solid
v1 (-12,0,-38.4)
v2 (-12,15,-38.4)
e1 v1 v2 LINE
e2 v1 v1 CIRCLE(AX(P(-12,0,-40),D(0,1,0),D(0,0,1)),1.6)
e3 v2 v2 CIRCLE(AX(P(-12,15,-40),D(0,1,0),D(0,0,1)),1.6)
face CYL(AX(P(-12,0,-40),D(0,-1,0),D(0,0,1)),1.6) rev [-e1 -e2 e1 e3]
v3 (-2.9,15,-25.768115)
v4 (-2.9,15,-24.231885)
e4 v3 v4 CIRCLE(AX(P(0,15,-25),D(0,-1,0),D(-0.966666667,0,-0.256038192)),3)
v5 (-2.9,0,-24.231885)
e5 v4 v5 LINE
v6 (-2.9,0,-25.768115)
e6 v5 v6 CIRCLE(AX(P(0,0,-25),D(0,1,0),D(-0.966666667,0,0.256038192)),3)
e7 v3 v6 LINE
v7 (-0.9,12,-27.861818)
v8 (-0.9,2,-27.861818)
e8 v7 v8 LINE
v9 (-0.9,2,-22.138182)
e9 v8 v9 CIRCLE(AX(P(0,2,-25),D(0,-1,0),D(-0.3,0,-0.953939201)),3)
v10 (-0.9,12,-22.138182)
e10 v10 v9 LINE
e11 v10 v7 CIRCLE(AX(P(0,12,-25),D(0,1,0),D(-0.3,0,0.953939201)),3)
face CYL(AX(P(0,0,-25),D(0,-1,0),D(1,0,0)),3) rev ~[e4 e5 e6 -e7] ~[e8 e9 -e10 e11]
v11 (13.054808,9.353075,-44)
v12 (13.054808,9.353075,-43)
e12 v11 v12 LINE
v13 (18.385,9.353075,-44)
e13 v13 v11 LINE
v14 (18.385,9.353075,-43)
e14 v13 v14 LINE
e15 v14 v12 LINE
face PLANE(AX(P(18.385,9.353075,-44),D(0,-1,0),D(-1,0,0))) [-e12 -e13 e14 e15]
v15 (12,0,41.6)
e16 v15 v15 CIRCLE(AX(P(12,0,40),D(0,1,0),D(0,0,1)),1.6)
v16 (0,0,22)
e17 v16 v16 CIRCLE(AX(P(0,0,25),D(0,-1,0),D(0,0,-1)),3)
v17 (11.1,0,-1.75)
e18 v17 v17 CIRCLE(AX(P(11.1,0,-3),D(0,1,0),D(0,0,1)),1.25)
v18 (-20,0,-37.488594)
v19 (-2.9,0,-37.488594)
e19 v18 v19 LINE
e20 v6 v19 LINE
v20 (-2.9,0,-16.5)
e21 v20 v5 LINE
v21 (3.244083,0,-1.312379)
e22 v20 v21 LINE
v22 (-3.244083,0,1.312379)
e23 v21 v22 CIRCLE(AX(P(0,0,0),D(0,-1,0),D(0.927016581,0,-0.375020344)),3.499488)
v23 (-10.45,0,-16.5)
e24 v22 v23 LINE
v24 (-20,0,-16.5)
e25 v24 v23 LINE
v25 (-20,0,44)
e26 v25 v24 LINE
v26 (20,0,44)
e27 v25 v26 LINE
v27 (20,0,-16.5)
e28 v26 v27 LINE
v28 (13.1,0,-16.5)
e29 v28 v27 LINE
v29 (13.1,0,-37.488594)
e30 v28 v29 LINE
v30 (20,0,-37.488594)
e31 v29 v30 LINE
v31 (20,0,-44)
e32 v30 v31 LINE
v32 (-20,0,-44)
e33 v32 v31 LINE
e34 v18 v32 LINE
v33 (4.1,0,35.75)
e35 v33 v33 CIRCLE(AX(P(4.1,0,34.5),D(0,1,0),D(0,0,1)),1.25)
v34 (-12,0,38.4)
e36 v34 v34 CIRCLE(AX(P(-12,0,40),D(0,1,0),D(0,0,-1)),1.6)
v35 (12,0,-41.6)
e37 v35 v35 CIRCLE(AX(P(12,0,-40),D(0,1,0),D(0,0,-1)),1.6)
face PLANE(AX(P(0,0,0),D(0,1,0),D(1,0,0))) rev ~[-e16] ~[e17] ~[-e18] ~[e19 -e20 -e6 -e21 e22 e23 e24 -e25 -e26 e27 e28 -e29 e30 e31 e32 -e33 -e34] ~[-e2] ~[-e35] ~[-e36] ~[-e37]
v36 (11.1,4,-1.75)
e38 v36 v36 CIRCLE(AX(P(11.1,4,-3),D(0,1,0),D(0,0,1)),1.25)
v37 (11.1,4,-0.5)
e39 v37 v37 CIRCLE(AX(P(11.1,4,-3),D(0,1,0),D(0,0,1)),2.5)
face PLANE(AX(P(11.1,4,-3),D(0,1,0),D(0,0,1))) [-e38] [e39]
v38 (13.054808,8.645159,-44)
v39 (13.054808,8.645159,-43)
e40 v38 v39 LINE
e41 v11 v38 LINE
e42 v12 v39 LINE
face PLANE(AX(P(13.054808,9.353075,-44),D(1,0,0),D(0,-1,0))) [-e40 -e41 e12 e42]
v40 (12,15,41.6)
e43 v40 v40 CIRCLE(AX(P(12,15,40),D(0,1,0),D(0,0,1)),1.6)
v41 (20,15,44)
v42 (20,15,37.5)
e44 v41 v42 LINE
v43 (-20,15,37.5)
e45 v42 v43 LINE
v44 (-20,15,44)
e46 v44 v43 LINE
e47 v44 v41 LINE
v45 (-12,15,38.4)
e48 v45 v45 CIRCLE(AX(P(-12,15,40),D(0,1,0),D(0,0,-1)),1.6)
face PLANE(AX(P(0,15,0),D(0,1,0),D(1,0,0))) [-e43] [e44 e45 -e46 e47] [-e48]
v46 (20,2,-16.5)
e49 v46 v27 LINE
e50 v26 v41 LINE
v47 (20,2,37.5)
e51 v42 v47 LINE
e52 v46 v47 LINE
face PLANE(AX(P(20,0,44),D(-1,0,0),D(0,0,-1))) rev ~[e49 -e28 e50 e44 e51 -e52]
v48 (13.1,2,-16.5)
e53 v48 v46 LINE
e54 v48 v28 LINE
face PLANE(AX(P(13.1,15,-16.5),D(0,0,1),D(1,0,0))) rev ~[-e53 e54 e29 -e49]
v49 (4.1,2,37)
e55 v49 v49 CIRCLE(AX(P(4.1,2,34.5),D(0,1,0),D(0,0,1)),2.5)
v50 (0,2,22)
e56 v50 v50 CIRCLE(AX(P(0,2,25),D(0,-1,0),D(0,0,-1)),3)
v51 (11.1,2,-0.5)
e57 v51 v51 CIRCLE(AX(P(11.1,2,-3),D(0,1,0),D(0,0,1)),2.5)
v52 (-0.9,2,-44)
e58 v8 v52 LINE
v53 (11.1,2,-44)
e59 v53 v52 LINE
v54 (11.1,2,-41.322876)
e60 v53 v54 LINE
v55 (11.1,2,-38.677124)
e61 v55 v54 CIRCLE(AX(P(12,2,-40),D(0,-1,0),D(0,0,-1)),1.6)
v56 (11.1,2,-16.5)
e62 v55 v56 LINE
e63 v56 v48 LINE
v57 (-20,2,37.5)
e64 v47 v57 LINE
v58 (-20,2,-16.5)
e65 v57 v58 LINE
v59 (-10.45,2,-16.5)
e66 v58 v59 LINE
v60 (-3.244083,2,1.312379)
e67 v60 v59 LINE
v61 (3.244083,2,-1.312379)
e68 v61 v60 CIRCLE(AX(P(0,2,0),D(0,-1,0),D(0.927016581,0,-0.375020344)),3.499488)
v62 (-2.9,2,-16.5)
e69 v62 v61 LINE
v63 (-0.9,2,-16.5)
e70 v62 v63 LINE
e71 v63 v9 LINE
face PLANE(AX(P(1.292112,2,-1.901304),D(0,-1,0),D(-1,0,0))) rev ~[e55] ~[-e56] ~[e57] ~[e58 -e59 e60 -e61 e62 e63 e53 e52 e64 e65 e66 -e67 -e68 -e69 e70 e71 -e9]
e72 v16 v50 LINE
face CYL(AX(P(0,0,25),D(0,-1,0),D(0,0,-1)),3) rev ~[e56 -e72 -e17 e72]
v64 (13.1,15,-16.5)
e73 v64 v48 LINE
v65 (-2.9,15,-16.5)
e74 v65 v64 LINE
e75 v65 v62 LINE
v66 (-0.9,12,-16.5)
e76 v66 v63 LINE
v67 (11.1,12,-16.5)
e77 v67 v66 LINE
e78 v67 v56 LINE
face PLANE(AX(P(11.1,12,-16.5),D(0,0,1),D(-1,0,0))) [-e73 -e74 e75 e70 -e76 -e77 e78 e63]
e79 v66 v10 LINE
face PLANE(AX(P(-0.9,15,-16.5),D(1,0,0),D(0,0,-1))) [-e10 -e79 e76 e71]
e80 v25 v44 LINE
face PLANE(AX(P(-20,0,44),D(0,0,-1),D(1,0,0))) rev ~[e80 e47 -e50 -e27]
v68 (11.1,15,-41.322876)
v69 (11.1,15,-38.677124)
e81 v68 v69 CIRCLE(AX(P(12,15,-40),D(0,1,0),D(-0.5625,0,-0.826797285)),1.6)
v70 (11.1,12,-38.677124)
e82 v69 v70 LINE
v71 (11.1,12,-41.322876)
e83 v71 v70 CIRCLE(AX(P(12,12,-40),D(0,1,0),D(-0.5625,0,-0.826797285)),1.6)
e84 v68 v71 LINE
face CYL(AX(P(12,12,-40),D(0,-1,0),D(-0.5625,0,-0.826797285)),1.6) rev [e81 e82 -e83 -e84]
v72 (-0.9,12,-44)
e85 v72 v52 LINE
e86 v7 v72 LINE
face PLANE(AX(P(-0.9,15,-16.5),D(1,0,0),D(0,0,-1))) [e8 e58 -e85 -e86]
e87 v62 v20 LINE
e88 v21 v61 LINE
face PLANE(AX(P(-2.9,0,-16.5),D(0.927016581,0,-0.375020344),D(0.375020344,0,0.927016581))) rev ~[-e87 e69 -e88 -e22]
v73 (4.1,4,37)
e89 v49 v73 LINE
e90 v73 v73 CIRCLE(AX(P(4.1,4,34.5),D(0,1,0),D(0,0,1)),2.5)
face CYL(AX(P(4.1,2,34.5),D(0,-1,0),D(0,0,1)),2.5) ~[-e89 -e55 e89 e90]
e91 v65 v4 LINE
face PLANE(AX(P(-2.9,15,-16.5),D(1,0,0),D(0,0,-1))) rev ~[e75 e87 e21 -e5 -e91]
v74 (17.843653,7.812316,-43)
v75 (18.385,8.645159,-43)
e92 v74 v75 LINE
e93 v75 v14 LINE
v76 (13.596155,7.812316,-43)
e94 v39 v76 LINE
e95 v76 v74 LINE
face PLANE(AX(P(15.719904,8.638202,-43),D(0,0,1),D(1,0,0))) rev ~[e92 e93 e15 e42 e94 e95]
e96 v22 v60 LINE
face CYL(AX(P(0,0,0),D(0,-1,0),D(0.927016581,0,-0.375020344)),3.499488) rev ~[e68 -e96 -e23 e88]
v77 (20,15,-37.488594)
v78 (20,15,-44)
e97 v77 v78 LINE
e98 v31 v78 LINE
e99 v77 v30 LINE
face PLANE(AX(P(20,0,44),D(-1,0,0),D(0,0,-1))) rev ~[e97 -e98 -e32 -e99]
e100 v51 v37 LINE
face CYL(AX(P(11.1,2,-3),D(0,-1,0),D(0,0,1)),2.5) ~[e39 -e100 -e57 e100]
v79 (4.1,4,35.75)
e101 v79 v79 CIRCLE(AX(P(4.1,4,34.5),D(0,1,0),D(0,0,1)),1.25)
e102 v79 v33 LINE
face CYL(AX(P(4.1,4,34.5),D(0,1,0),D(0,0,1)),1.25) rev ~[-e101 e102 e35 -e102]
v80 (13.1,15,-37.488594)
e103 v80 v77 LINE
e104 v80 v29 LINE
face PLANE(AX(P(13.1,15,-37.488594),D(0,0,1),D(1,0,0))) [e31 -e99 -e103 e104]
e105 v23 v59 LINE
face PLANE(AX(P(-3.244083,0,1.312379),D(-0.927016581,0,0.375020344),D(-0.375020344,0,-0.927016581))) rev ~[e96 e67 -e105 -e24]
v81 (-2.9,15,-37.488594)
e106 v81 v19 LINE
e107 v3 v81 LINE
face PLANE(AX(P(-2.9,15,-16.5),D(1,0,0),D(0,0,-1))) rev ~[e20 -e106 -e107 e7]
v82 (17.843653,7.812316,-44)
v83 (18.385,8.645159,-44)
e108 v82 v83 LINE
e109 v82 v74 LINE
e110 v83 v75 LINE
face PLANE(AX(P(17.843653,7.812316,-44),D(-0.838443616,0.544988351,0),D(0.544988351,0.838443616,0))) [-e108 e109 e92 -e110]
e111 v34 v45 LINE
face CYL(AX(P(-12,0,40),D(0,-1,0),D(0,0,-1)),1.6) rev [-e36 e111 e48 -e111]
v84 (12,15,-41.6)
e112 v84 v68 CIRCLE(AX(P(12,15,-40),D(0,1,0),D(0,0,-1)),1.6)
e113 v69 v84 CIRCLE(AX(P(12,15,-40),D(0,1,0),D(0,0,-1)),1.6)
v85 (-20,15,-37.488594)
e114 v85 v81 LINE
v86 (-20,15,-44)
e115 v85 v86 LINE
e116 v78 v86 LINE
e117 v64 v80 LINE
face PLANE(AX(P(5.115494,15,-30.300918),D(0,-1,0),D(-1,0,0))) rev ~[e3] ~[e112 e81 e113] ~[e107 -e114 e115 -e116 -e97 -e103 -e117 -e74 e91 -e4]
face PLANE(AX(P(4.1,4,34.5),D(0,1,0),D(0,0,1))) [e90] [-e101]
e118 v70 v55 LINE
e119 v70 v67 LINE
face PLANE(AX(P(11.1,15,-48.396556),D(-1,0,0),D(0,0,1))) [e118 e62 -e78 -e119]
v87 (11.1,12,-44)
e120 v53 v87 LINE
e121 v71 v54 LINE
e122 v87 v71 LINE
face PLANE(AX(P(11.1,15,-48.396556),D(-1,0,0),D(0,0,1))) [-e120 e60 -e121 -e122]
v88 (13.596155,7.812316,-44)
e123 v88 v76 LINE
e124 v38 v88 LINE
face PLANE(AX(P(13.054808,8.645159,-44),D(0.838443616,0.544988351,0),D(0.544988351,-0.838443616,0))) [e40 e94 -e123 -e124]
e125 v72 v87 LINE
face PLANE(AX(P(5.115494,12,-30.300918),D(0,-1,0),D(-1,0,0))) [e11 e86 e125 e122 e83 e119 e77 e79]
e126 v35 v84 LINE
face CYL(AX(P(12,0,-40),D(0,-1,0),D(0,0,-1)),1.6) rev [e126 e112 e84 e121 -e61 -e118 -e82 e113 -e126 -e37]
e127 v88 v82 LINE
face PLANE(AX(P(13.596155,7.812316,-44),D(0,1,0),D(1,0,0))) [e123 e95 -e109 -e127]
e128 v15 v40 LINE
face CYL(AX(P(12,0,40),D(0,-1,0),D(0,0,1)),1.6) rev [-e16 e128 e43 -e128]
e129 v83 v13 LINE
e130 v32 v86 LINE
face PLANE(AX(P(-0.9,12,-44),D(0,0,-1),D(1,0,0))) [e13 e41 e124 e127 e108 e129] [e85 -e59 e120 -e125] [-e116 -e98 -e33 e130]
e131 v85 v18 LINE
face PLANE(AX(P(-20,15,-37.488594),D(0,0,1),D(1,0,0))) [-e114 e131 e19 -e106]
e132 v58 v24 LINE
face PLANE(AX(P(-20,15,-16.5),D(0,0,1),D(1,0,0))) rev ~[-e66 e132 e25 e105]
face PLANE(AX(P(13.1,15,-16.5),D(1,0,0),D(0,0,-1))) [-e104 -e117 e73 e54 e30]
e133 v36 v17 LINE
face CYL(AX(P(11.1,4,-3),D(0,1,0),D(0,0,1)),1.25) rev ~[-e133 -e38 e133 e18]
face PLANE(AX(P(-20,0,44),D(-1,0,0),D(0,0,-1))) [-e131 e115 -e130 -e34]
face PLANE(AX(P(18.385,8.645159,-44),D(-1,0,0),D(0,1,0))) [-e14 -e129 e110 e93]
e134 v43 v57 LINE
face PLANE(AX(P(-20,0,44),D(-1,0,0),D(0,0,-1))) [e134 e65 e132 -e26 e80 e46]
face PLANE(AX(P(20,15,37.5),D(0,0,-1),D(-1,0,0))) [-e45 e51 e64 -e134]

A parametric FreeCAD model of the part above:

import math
import FreeCAD as App
import Part
import Sketcher
from FreeCAD import Vector


def add_polygon(sketch, points):
    """Adds a closed chain of lines whose ends are joined by coincident constraints."""
    first, n = sketch.GeometryCount, len(points)
    for a, b in zip(points, points[1:] + points[:1]):
        sketch.addGeometry(Part.LineSegment(App.Vector(*a, 0), App.Vector(*b, 0)), False)
    for i in range(n):
        sketch.addConstraint(Sketcher.Constraint("Coincident", first + i, 2, first + (i + 1) % n, 1))

doc = App.newDocument("Part")
body = doc.addObject("PartDesign::Body", "Body")

# Sketch on XZ plane
sketch1 = doc.addObject("Sketcher::SketchObject", "Sketch")
body.addObject(sketch1)
sketch1.AttachmentSupport = (doc.XZ_Plane, [""])
sketch1.MapMode = "FlatFace"
add_polygon(sketch1, [(-20, -44), (-20, 44), (20, 44), (20, -44)])  # lines 0-3
sketch1.addGeometry(Part.Circle(Vector(-12, 40, 0), Vector(0, 0, 1), 1.6), False)  # 4
sketch1.addGeometry(Part.Circle(Vector(12, 40, 0), Vector(0, 0, 1), 1.6), False)  # 5
sketch1.addGeometry(Part.Circle(Vector(-12, -40, 0), Vector(0, 0, 1), 1.6), False)  # 6
sketch1.addGeometry(Part.Circle(Vector(12, -40, 0), Vector(0, 0, 1), 1.6), False)  # 7
sketch1.addConstraint(Sketcher.Constraint("Vertical", 0))
sketch1.addConstraint(Sketcher.Constraint("Horizontal", 1))
sketch1.addConstraint(Sketcher.Constraint("Vertical", 2))
sketch1.addConstraint(Sketcher.Constraint("Horizontal", 3))
sketch1.addConstraint(Sketcher.Constraint("Equal", 4, 5))
sketch1.addConstraint(Sketcher.Constraint("Equal", 5, 6))
sketch1.addConstraint(Sketcher.Constraint("Equal", 6, 7))
sketch1.addConstraint(Sketcher.Constraint("Symmetric", 5, 3, 6, 3, -1, 1))
sketch1.addConstraint(Sketcher.Constraint("Symmetric", 4, 3, 7, 3, -1, 1))
sketch1.addConstraint(Sketcher.Constraint("Symmetric", 0, 2, 2, 2, -1, 1))
sketch1.addConstraint(Sketcher.Constraint("Symmetric", 4, 3, 5, 3, -2))
sketch1.addConstraint(Sketcher.Constraint("Diameter", 4, 3.2))
sketch1.addConstraint(Sketcher.Constraint("DistanceX", 1, 1, 1, 2, 40.0))
sketch1.addConstraint(Sketcher.Constraint("DistanceY", 0, 1, 0, 2, 88.0))
sketch1.addConstraint(Sketcher.Constraint("DistanceX", 4, 3, -1, 1, 12.0))
sketch1.addConstraint(Sketcher.Constraint("DistanceY", -1, 1, 4, 3, 40.0))
pad1 = doc.addObject("PartDesign::Pad", "Pad")
body.addObject(pad1)
pad1.Profile = sketch1
pad1.Length = 15
pad1.Reversed = True

# Sketch on XZ plane
sketch2 = doc.addObject("Sketcher::SketchObject", "Sketch001")
body.addObject(sketch2)
sketch2.AttachmentSupport = (doc.XZ_Plane, [""])
sketch2.MapMode = "FlatFace"
sketch2.AttachmentOffset = App.Placement(Vector(0, 0, -15), App.Rotation())
add_polygon(sketch2, [(11.1, -48.396556), (-0.9, -48.396556), (-0.9, -16.5), (-20, -16.5), (-20, 37.5), (20, 37.5), (20, -16.5), (11.1, -16.5)])  # lines 0-7
sketch2.addConstraint(Sketcher.Constraint("Horizontal", 0))
sketch2.addConstraint(Sketcher.Constraint("Vertical", 1))
sketch2.addConstraint(Sketcher.Constraint("Horizontal", 2))
sketch2.addConstraint(Sketcher.Constraint("Vertical", 3))
sketch2.addConstraint(Sketcher.Constraint("Horizontal", 4))
sketch2.addConstraint(Sketcher.Constraint("Vertical", 5))
sketch2.addConstraint(Sketcher.Constraint("Horizontal", 6))
sketch2.addConstraint(Sketcher.Constraint("Vertical", 7))
sketch2.addConstraint(Sketcher.Constraint("Symmetric", 2, 2, 5, 2, -2))
sketch2.addConstraint(Sketcher.Constraint("DistanceX", 0, 2, 0, 1, 12.0))
sketch2.addConstraint(Sketcher.Constraint("DistanceX", 4, 1, 4, 2, 40.0))
sketch2.addConstraint(Sketcher.Constraint("DistanceY", 3, 1, 3, 2, 54.0))
sketch2.addConstraint(Sketcher.Constraint("DistanceX", 2, 2, 2, 1, 19.1))
sketch2.addConstraint(Sketcher.Constraint("DistanceY", 1, 2, -1, 1, 16.5))
sketch2.addConstraint(Sketcher.Constraint("DistanceY", 1, 1, 1, 2, 31.896556))
pocket1 = doc.addObject("PartDesign::Pocket", "Pocket")
body.addObject(pocket1)
pocket1.Profile = sketch2
pocket1.Length = 13
pocket1.Reversed = True

# Sketch on XZ plane
sketch3 = doc.addObject("Sketcher::SketchObject", "Sketch002")
body.addObject(sketch3)
sketch3.AttachmentSupport = (doc.XZ_Plane, [""])
sketch3.MapMode = "FlatFace"
sketch3.AttachmentOffset = App.Placement(Vector(0, 0, -2), App.Rotation())
sketch3.addGeometry(Part.Circle(Vector(11.1, -3, 0), Vector(0, 0, 1), 2.5), False)
sketch3.addGeometry(Part.Circle(Vector(4.1, 34.5, 0), Vector(0, 0, 1), 2.5), False)
sketch3.addConstraint(Sketcher.Constraint("Equal", 0, 1))
sketch3.addConstraint(Sketcher.Constraint("Diameter", 0, 5.0))
sketch3.addConstraint(Sketcher.Constraint("DistanceY", 0, 3, -1, 1, 3.0))
sketch3.addConstraint(Sketcher.Constraint("DistanceX", 1, 3, 0, 3, 7.0))
sketch3.addConstraint(Sketcher.Constraint("DistanceX", -1, 1, 0, 3, 11.1))
sketch3.addConstraint(Sketcher.Constraint("DistanceY", -1, 1, 1, 3, 34.5))
pad2 = doc.addObject("PartDesign::Pad", "Pad001")
body.addObject(pad2)
pad2.Profile = sketch3
pad2.Length = 2
pad2.Reversed = True

# Sketch on XZ plane
sketch4 = doc.addObject("Sketcher::SketchObject", "Sketch003")
body.addObject(sketch4)
sketch4.AttachmentSupport = (doc.XZ_Plane, [""])
sketch4.MapMode = "FlatFace"
sketch4.AttachmentOffset = App.Placement(Vector(0, 0, -4), App.Rotation())
sketch4.addGeometry(Part.Circle(Vector(11.1, -3, 0), Vector(0, 0, 1), 1.25), False)
sketch4.addGeometry(Part.Circle(Vector(4.1, 34.5, 0), Vector(0, 0, 1), 1.25), False)
sketch4.addConstraint(Sketcher.Constraint("Equal", 0, 1))
sketch4.addConstraint(Sketcher.Constraint("Diameter", 0, 2.5))
sketch4.addConstraint(Sketcher.Constraint("DistanceY", 0, 3, -1, 1, 3.0))
sketch4.addConstraint(Sketcher.Constraint("DistanceX", 1, 3, 0, 3, 7.0))
sketch4.addConstraint(Sketcher.Constraint("DistanceX", -1, 1, 0, 3, 11.1))
sketch4.addConstraint(Sketcher.Constraint("DistanceY", -1, 1, 1, 3, 34.5))
pocket2 = doc.addObject("PartDesign::Pocket", "Pocket001")
body.addObject(pocket2)
pocket2.Profile = sketch4
pocket2.Type = "ThroughAll"
pocket2.Reversed = True

# Sketch on XZ plane
sketch5 = doc.addObject("Sketcher::SketchObject", "Sketch004")
body.addObject(sketch5)
sketch5.AttachmentSupport = (doc.XZ_Plane, [""])
sketch5.MapMode = "FlatFace"
sketch5.AttachmentOffset = App.Placement(Vector(0, 0, -15), App.Rotation())
add_polygon(sketch5, [(-20, -37.488594), (-20, -16.5), (-2.9, -16.5), (-2.9, -37.488594)])  # lines 0-3
add_polygon(sketch5, [(13.1, -37.488594), (13.1, -16.5), (20, -16.5), (20, -37.488594)])  # lines 4-7
sketch5.addConstraint(Sketcher.Constraint("Vertical", 0))
sketch5.addConstraint(Sketcher.Constraint("Horizontal", 1))
sketch5.addConstraint(Sketcher.Constraint("Vertical", 2))
sketch5.addConstraint(Sketcher.Constraint("Horizontal", 3))
sketch5.addConstraint(Sketcher.Constraint("Vertical", 4))
sketch5.addConstraint(Sketcher.Constraint("Horizontal", 5))
sketch5.addConstraint(Sketcher.Constraint("Vertical", 6))
sketch5.addConstraint(Sketcher.Constraint("Horizontal", 7))
sketch5.addConstraint(Sketcher.Constraint("Symmetric", 0, 2, 5, 2, -2))
sketch5.addConstraint(Sketcher.Constraint("Horizontal", 3, 2, 6, 2))
sketch5.addConstraint(Sketcher.Constraint("DistanceX", 1, 1, 1, 2, 17.1))
sketch5.addConstraint(Sketcher.Constraint("DistanceX", 5, 1, 5, 2, 6.9))
sketch5.addConstraint(Sketcher.Constraint("DistanceX", 0, 2, -1, 1, 20.0))
sketch5.addConstraint(Sketcher.Constraint("DistanceY", 0, 2, -1, 1, 16.5))
sketch5.addConstraint(Sketcher.Constraint("DistanceY", 0, 1, 0, 2, 20.988594))
pocket3 = doc.addObject("PartDesign::Pocket", "Pocket002")
body.addObject(pocket3)
pocket3.Profile = sketch5
pocket3.Type = "ThroughAll"
pocket3.Reversed = True

# Sketch on XZ plane
sketch6 = doc.addObject("Sketcher::SketchObject", "Sketch005")
body.addObject(sketch6)
sketch6.AttachmentSupport = (doc.XZ_Plane, [""])
sketch6.MapMode = "FlatFace"
sketch6.AttachmentOffset = App.Placement(Vector(0, 0, -12), App.Rotation())
sketch6.addGeometry(Part.LineSegment(Vector(11.1, -41.322876, 0), Vector(11.1, -44, 0)), False)
sketch6.addGeometry(Part.LineSegment(Vector(11.1, -44, 0), Vector(-0.9, -44, 0)), False)
sketch6.addGeometry(Part.LineSegment(Vector(-0.9, -44, 0), Vector(-0.9, -16.5, 0)), False)
sketch6.addGeometry(Part.LineSegment(Vector(-0.9, -16.5, 0), Vector(11.1, -16.5, 0)), False)
sketch6.addGeometry(Part.LineSegment(Vector(11.1, -16.5, 0), Vector(11.1, -38.677124, 0)), False)
sketch6.addGeometry(Part.ArcOfCircle(Part.Circle(Vector(12, -40, 0), Vector(0, 0, 1), 1.6), math.radians(124.228866), math.radians(235.771134)), False)
sketch6.addConstraint(Sketcher.Constraint("Coincident", 0, 2, 1, 1))
sketch6.addConstraint(Sketcher.Constraint("Coincident", 1, 2, 2, 1))
sketch6.addConstraint(Sketcher.Constraint("Coincident", 2, 2, 3, 1))
sketch6.addConstraint(Sketcher.Constraint("Coincident", 3, 2, 4, 1))
sketch6.addConstraint(Sketcher.Constraint("Coincident", 4, 2, 5, 1))
sketch6.addConstraint(Sketcher.Constraint("Coincident", 5, 2, 0, 1))
sketch6.addConstraint(Sketcher.Constraint("Vertical", 0))
sketch6.addConstraint(Sketcher.Constraint("Horizontal", 1))
sketch6.addConstraint(Sketcher.Constraint("Vertical", 2))
sketch6.addConstraint(Sketcher.Constraint("Horizontal", 3))
sketch6.addConstraint(Sketcher.Constraint("Vertical", 4))
sketch6.addConstraint(Sketcher.Constraint("Vertical", 0, 2, 3, 2))
sketch6.addConstraint(Sketcher.Constraint("Radius", 5, 1.6))
sketch6.addConstraint(Sketcher.Constraint("DistanceX", 1, 2, 1, 1, 12.0))
sketch6.addConstraint(Sketcher.Constraint("DistanceY", 2, 1, 2, 2, 27.5))
sketch6.addConstraint(Sketcher.Constraint("DistanceX", -1, 1, 5, 3, 12.0))
sketch6.addConstraint(Sketcher.Constraint("DistanceY", 5, 3, -1, 1, 40.0))
sketch6.addConstraint(Sketcher.Constraint("DistanceY", 0, 2, -1, 1, 44.0))
sketch6.addConstraint(Sketcher.Constraint("DistanceX", -1, 1, 0, 2, 11.1))
pad3 = doc.addObject("PartDesign::Pad", "Pad002")
body.addObject(pad3)
pad3.Profile = sketch6
pad3.Length = 3
pad3.Reversed = True

# Sketch on XY plane
sketch7 = doc.addObject("Sketcher::SketchObject", "Sketch006")
body.addObject(sketch7)
sketch7.AttachmentSupport = (doc.XY_Plane, [""])
sketch7.MapMode = "FlatFace"
sketch7.AttachmentOffset = App.Placement(Vector(0, 0, -44), App.Rotation())
add_polygon(sketch7, [(13.054808, 9.353075), (18.385, 9.353075), (18.385, 8.645159), (17.843653, 7.812316), (13.596155, 7.812316), (13.054808, 8.645159)])  # lines 0-5
sketch7.addConstraint(Sketcher.Constraint("Horizontal", 0))
sketch7.addConstraint(Sketcher.Constraint("Vertical", 1))
sketch7.addConstraint(Sketcher.Constraint("Horizontal", 3))
sketch7.addConstraint(Sketcher.Constraint("Vertical", 5))
sketch7.addConstraint(Sketcher.Constraint("Horizontal", 1, 2, 4, 2))
sketch7.addConstraint(Sketcher.Constraint("Equal", 2, 4))
sketch7.addConstraint(Sketcher.Constraint("DistanceX", -1, 1, 0, 2, 18.385))
sketch7.addConstraint(Sketcher.Constraint("Distance", 2, 0.99332))
sketch7.addConstraint(Sketcher.Constraint("DistanceX", 0, 1, 0, 2, 5.330193))
sketch7.addConstraint(Sketcher.Constraint("DistanceX", 3, 2, 3, 1, 4.247497))
sketch7.addConstraint(Sketcher.Constraint("DistanceY", 1, 2, 1, 1, 0.707916))
sketch7.addConstraint(Sketcher.Constraint("DistanceY", -1, 1, 1, 2, 8.645159))
pocket4 = doc.addObject("PartDesign::Pocket", "Pocket003")
body.addObject(pocket4)
pocket4.Profile = sketch7
pocket4.Length = 1
pocket4.Reversed = True

# Sketch on XZ plane
sketch8 = doc.addObject("Sketcher::SketchObject", "Sketch007")
body.addObject(sketch8)
sketch8.AttachmentSupport = (doc.XZ_Plane, [""])
sketch8.MapMode = "FlatFace"
sketch8.addGeometry(Part.Circle(Vector(0, 25, 0), Vector(0, 0, 1), 3), False)
sketch8.addGeometry(Part.Circle(Vector(0, -25, 0), Vector(0, 0, 1), 3), False)
sketch8.addGeometry(Part.LineSegment(Vector(-2.9, -16.5, 0), Vector(3.244083, -1.312379, 0)), False)
sketch8.addGeometry(Part.ArcOfCircle(Part.Circle(Vector(0, 0, 0), Vector(0, 0, 1), 3.499488), math.radians(-22.02557), math.radians(157.97443)), False)
sketch8.addGeometry(Part.LineSegment(Vector(-3.244083, 1.312379, 0), Vector(-10.45, -16.5, 0)), False)
sketch8.addGeometry(Part.LineSegment(Vector(-10.45, -16.5, 0), Vector(-2.9, -16.5, 0)), False)
sketch8.addConstraint(Sketcher.Constraint("Tangent", 2, 2, 3, 1))
sketch8.addConstraint(Sketcher.Constraint("Tangent", 3, 2, 4, 1))
sketch8.addConstraint(Sketcher.Constraint("Coincident", 4, 2, 5, 1))
sketch8.addConstraint(Sketcher.Constraint("Coincident", 5, 2, 2, 1))
sketch8.addConstraint(Sketcher.Constraint("Horizontal", 5))
sketch8.addConstraint(Sketcher.Constraint("Coincident", 3, 3, -1, 1))
sketch8.addConstraint(Sketcher.Constraint("Equal", 0, 1))
sketch8.addConstraint(Sketcher.Constraint("Symmetric", 0, 3, 1, 3, -1, 1))
sketch8.addConstraint(Sketcher.Constraint("PointOnObject", 0, 3, -2))
sketch8.addConstraint(Sketcher.Constraint("Parallel", 2, 4))
sketch8.addConstraint(Sketcher.Constraint("Diameter", 0, 6.0))
sketch8.addConstraint(Sketcher.Constraint("DistanceY", -1, 1, 0, 3, 25.0))
sketch8.addConstraint(Sketcher.Constraint("DistanceX", 5, 1, 5, 2, 7.55))
sketch8.addConstraint(Sketcher.Constraint("DistanceY", 4, 2, -1, 1, 16.5))
sketch8.addConstraint(Sketcher.Constraint("DistanceX", 5, 2, -1, 1, 2.9))
pocket5 = doc.addObject("PartDesign::Pocket", "Pocket004")
body.addObject(pocket5)
pocket5.Profile = sketch8
pocket5.Type = "ThroughAll"

doc.recompute()
